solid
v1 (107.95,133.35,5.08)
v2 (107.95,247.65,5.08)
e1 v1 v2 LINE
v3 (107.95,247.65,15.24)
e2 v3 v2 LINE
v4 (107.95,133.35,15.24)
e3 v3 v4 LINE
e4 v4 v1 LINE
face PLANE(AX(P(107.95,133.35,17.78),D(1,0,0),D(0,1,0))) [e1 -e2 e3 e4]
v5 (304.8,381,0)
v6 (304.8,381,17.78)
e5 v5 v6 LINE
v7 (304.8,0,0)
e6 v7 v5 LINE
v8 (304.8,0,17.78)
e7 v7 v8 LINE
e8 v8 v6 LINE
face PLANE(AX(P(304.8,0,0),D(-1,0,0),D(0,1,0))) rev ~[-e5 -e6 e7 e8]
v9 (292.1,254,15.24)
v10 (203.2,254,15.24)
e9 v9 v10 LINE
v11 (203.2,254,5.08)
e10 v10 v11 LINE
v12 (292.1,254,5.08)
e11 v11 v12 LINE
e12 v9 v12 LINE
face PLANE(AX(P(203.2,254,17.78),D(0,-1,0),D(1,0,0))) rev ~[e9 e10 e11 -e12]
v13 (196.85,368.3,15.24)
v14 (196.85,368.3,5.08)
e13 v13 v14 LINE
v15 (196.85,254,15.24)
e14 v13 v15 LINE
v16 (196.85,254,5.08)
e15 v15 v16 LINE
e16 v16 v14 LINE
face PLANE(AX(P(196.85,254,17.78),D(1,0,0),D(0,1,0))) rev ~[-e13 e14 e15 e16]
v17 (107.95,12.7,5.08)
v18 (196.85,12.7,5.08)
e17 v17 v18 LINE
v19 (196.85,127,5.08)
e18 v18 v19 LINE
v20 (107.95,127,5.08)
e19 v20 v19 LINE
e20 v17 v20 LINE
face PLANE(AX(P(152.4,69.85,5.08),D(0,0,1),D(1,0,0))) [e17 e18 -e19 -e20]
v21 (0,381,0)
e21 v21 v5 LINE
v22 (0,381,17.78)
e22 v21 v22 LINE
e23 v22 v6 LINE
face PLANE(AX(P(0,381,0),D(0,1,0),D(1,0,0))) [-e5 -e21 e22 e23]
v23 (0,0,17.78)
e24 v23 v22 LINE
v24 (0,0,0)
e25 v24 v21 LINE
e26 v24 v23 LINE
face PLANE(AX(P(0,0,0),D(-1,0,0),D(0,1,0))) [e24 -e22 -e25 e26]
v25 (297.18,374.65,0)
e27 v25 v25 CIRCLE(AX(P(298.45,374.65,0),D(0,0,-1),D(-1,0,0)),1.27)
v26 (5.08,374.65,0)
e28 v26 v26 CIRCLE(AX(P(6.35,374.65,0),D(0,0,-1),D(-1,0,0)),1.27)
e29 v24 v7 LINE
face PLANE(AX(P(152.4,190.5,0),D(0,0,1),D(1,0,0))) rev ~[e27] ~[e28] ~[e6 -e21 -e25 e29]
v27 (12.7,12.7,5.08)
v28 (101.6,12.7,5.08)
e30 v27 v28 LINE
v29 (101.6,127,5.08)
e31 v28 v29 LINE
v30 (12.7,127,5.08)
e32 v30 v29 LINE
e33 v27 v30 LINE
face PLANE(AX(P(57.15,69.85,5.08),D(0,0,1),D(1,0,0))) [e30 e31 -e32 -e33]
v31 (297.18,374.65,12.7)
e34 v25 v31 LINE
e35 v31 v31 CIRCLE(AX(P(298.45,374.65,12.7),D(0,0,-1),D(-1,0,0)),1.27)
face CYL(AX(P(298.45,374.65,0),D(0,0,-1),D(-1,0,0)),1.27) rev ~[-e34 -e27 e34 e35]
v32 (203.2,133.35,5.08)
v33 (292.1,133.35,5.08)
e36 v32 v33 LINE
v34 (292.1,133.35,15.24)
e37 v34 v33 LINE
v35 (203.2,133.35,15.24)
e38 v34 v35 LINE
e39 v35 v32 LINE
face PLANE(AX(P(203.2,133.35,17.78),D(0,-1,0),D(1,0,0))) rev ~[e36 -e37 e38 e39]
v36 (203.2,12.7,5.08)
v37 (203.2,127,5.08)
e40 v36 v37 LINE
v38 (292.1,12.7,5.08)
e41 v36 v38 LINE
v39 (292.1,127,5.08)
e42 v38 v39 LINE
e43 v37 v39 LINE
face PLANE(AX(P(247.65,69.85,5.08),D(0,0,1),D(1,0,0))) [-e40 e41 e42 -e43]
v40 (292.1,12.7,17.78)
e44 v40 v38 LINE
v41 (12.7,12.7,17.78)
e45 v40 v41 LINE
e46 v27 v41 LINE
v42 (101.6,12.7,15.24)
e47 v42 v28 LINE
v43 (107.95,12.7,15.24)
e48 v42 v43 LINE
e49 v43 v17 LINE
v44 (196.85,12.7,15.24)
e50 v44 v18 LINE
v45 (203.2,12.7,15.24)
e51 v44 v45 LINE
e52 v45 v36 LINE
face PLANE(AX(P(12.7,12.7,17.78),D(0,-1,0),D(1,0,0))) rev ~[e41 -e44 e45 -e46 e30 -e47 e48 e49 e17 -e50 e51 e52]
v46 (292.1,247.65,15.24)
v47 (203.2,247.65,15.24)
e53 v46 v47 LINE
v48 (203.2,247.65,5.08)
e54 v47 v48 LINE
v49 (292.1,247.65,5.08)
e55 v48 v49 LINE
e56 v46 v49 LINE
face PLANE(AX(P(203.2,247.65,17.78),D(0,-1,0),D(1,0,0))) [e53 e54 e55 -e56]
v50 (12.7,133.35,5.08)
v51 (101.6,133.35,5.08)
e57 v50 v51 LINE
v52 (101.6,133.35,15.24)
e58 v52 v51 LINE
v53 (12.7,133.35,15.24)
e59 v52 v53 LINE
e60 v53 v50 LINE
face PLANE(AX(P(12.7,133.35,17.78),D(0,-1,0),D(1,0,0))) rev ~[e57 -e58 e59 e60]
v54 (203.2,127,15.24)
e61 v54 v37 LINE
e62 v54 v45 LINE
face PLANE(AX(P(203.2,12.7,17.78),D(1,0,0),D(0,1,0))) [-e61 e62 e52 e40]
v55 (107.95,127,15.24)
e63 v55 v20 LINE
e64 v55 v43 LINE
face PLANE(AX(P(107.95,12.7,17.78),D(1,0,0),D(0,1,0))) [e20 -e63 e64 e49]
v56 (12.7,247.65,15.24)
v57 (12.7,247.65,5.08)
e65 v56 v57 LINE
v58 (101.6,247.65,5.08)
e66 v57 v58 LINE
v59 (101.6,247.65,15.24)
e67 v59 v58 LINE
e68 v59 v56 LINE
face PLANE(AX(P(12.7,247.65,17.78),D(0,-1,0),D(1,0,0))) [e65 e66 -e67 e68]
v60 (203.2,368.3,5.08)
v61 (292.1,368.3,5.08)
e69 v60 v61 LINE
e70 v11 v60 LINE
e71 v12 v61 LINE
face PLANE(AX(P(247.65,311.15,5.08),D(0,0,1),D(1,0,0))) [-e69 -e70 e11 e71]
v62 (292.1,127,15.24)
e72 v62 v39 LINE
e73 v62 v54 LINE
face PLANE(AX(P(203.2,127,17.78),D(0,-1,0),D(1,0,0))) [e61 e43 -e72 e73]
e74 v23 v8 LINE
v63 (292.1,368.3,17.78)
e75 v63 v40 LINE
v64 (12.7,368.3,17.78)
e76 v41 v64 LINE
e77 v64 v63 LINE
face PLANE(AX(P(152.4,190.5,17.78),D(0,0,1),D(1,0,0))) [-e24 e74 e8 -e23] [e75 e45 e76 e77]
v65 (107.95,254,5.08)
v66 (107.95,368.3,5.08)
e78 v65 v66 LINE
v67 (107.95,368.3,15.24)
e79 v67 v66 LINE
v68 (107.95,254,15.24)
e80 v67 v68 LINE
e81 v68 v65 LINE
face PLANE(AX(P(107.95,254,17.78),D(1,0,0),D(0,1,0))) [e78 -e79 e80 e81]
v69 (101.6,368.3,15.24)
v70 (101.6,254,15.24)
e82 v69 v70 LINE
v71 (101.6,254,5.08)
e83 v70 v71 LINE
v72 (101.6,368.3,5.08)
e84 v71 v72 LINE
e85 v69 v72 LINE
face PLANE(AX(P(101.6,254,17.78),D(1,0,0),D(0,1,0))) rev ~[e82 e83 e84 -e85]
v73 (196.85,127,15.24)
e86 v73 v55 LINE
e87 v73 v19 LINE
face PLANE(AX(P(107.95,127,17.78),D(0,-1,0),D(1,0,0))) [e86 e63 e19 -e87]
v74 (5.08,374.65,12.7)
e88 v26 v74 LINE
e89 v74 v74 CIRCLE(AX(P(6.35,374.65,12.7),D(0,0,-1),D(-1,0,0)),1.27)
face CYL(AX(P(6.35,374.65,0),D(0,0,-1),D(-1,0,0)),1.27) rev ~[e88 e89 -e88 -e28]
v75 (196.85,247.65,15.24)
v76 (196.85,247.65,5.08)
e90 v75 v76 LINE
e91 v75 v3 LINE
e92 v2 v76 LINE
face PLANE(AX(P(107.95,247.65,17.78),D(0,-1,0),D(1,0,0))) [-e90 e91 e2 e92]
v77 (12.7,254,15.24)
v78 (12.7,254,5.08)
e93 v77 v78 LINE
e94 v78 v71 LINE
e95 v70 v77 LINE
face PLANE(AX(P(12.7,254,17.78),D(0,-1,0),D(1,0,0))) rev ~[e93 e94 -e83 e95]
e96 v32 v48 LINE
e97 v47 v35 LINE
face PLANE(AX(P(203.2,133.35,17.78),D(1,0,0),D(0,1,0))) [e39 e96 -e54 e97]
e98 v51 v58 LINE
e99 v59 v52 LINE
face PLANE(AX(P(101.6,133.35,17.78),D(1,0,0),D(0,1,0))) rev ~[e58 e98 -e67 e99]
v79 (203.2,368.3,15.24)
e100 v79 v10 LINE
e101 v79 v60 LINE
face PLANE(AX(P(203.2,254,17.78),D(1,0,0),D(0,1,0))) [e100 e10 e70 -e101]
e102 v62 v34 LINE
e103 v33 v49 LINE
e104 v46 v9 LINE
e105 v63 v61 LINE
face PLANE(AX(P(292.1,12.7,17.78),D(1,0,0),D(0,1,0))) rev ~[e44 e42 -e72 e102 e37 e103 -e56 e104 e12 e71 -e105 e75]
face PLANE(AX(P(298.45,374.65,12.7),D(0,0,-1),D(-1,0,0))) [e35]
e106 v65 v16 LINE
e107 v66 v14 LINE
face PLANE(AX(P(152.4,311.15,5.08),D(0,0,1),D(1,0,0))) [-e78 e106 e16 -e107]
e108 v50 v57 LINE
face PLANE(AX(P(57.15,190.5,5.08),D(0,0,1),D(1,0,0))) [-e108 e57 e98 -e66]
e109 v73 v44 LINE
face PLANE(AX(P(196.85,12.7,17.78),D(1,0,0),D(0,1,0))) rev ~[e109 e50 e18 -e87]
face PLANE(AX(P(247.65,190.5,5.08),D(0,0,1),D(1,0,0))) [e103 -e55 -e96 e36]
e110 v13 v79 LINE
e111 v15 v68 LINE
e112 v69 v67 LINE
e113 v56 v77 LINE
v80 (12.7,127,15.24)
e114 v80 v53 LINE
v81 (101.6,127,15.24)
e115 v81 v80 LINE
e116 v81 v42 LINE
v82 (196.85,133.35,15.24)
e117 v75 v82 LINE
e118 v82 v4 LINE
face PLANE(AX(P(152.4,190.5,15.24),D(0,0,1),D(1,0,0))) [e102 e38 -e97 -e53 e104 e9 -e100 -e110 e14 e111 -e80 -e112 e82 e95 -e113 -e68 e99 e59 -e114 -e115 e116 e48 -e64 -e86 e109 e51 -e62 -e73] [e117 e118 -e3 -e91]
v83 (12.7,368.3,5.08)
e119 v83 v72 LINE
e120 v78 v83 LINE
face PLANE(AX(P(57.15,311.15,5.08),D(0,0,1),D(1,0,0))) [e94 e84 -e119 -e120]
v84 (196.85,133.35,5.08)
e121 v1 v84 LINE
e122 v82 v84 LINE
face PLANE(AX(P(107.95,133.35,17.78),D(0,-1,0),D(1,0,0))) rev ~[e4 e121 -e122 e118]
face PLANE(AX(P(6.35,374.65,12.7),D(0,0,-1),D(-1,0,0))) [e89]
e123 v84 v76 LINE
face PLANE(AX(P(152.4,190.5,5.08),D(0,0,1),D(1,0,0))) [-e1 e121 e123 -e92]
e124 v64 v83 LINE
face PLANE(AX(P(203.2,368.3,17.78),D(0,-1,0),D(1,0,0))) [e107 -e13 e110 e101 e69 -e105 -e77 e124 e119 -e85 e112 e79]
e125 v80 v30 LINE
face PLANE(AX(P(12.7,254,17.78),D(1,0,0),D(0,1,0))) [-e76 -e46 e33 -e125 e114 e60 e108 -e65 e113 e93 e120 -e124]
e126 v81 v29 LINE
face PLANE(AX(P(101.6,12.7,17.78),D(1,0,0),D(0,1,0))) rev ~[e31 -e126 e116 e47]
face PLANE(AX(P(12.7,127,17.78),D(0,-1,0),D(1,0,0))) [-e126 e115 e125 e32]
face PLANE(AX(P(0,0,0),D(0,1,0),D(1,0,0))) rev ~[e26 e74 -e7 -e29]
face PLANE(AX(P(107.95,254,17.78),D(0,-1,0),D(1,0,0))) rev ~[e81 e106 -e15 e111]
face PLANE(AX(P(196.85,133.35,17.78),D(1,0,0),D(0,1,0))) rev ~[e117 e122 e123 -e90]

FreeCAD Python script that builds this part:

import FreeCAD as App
import Part
import Sketcher
from FreeCAD import Vector
Q = App.Units.Quantity


def add_polygon(sketch, points):
    """Adds a closed chain of lines whose ends are joined by coincident constraints."""
    first, n = sketch.GeometryCount, len(points)
    for a, b in zip(points, points[1:] + points[:1]):
        sketch.addGeometry(Part.LineSegment(App.Vector(*a, 0), App.Vector(*b, 0)), False)
    for i in range(n):
        sketch.addConstraint(Sketcher.Constraint("Coincident", first + i, 2, first + (i + 1) % n, 1))

doc = App.newDocument("Part")
body = doc.addObject("PartDesign::Body", "Body")

# Sketch on XY plane
sketch1 = body.newObject("Sketcher::SketchObject", "Sketch")
sketch1.AttachmentSupport = (doc.getObject("XY_Plane"), [""])
sketch1.MapMode = "FlatFace"
add_polygon(sketch1, [(0, 381), (0, 0), (305, 0), (305, 381)])  # lines 0-3
sketch1.addConstraint([
    Sketcher.Constraint("Vertical", 0),
    Sketcher.Constraint("Horizontal", 1),
    Sketcher.Constraint("Vertical", 2),
    Sketcher.Constraint("Horizontal", 3),
    Sketcher.Constraint("Coincident", 0, 2, -1, 1),
    Sketcher.Constraint("DistanceX", 1, 1, 1, 2, Q("12 in")),
    Sketcher.Constraint("DistanceY", 0, 2, 0, 1, Q("15 in")),
])
pad1 = body.newObject("PartDesign::Pad", "Pad")
pad1.Profile = sketch1
pad1.Length = Q("0.7 in")

# Sketch on XY plane
sketch2 = body.newObject("Sketcher::SketchObject", "Sketch001")
sketch2.AttachmentSupport = (doc.getObject("XY_Plane"), [""])
sketch2.MapMode = "FlatFace"
sketch2.AttachmentOffset = App.Placement(Vector(0, 0, 0.7 * 25.4), App.Rotation())
add_polygon(sketch2, [(13, 127), (13, 13), (102, 13), (102, 127)])  # lines 0-3
add_polygon(sketch2, [(108, 368), (108, 254), (197, 254), (197, 368)])  # lines 4-7
add_polygon(sketch2, [(13, 368), (13, 254), (102, 254), (102, 368)])  # lines 8-11
add_polygon(sketch2, [(203, 368), (203, 254), (292, 254), (292, 368)])  # lines 12-15
add_polygon(sketch2, [(13, 248), (13, 133), (102, 133), (102, 248)])  # lines 16-19
add_polygon(sketch2, [(108, 248), (108, 133), (197, 133), (197, 248)])  # lines 20-23
add_polygon(sketch2, [(203, 248), (203, 133), (292, 133), (292, 248)])  # lines 24-27
add_polygon(sketch2, [(108, 127), (108, 13), (197, 13), (197, 127)])  # lines 28-31
add_polygon(sketch2, [(203, 127), (203, 13), (292, 13), (292, 127)])  # lines 32-35
sketch2.addConstraint([
    Sketcher.Constraint("Vertical", 0),
    Sketcher.Constraint("Horizontal", 1),
    Sketcher.Constraint("Vertical", 2),
    Sketcher.Constraint("Horizontal", 3),
    Sketcher.Constraint("Vertical", 4),
    Sketcher.Constraint("Horizontal", 5),
    Sketcher.Constraint("Vertical", 6),
    Sketcher.Constraint("Horizontal", 7),
    Sketcher.Constraint("Vertical", 8),
    Sketcher.Constraint("Horizontal", 9),
    Sketcher.Constraint("Vertical", 10),
    Sketcher.Constraint("Horizontal", 11),
    Sketcher.Constraint("Vertical", 12),
    Sketcher.Constraint("Horizontal", 13),
    Sketcher.Constraint("Vertical", 14),
    Sketcher.Constraint("Horizontal", 15),
    Sketcher.Constraint("Vertical", 16),
    Sketcher.Constraint("Horizontal", 17),
    Sketcher.Constraint("Vertical", 18),
    Sketcher.Constraint("Horizontal", 19),
    Sketcher.Constraint("Vertical", 20),
    Sketcher.Constraint("Horizontal", 21),
    Sketcher.Constraint("Vertical", 22),
    Sketcher.Constraint("Horizontal", 23),
    Sketcher.Constraint("Vertical", 24),
    Sketcher.Constraint("Horizontal", 25),
    Sketcher.Constraint("Vertical", 26),
    Sketcher.Constraint("Horizontal", 27),
    Sketcher.Constraint("Vertical", 28),
    Sketcher.Constraint("Horizontal", 29),
    Sketcher.Constraint("Vertical", 30),
    Sketcher.Constraint("Horizontal", 31),
    Sketcher.Constraint("Vertical", 32),
    Sketcher.Constraint("Horizontal", 33),
    Sketcher.Constraint("Vertical", 34),
    Sketcher.Constraint("Horizontal", 35),
    Sketcher.Constraint("Horizontal", 5, 2, 8, 2),
    Sketcher.Constraint("Horizontal", 7, 2, 10, 2),
    Sketcher.Constraint("Horizontal", 9, 2, 12, 2),
    Sketcher.Constraint("Horizontal", 11, 2, 14, 2),
    Sketcher.Constraint("Horizontal", 17, 2, 20, 2),
    Sketcher.Constraint("Horizontal", 19, 2, 22, 2),
    Sketcher.Constraint("Horizontal", 21, 2, 24, 2),
    Sketcher.Constraint("Horizontal", 23, 2, 26, 2),
    Sketcher.Constraint("Horizontal", 1, 2, 28, 2),
    Sketcher.Constraint("Horizontal", 3, 2, 30, 2),
    Sketcher.Constraint("Horizontal", 29, 2, 32, 2),
    Sketcher.Constraint("Horizontal", 31, 2, 34, 2),
    Sketcher.Constraint("Vertical", 3, 2, 8, 2),
    Sketcher.Constraint("Vertical", 2, 2, 9, 2),
    Sketcher.Constraint("Vertical", 11, 2, 16, 2),
    Sketcher.Constraint("Vertical", 10, 2, 17, 2),
    Sketcher.Constraint("Vertical", 7, 2, 20, 2),
    Sketcher.Constraint("Vertical", 6, 2, 21, 2),
    Sketcher.Constraint("Vertical", 15, 2, 24, 2),
    Sketcher.Constraint("Vertical", 14, 2, 25, 2),
    Sketcher.Constraint("Vertical", 23, 2, 28, 2),
    Sketcher.Constraint("Vertical", 22, 2, 29, 2),
    Sketcher.Constraint("Vertical", 27, 2, 32, 2),
    Sketcher.Constraint("Vertical", 26, 2, 33, 2),
    Sketcher.Constraint("Equal", 3, 5),
    Sketcher.Constraint("Equal", 11, 13),
    Sketcher.Constraint("Equal", 2, 4),
    Sketcher.Constraint("Equal", 14, 16),
    Sketcher.Constraint("DistanceX", 1, 1, 1, 2, Q("3.5 in")),
    Sketcher.Constraint("DistanceY", 0, 2, 0, 1, Q("4.5 in")),
    Sketcher.Constraint("DistanceX", -1, 1, 1, 2, Q("4 in")),
    Sketcher.Constraint("DistanceY", -1, 1, 2, 2, Q("5 in")),
    Sketcher.Constraint("DistanceY", -1, 1, 4, 2, Q("10 in")),
    Sketcher.Constraint("DistanceX", -1, 1, 12, 2, Q("8 in")),
    Sketcher.Constraint("DistanceX", -1, 1, 4, 2, Q("4.25 in")),
    Sketcher.Constraint("DistanceY", -1, 1, 16, 2, Q("5.25 in")),
])
pocket1 = body.newObject("PartDesign::Pocket", "Pocket")
pocket1.Profile = sketch2
pocket1.Length = Q("0.5 in")

# Sketch on XY plane
sketch3 = body.newObject("Sketcher::SketchObject", "Sketch002")
sketch3.AttachmentSupport = (doc.getObject("XY_Plane"), [""])
sketch3.MapMode = "FlatFace"
sketch3.AttachmentOffset = App.Placement(Vector(0, 0, 0.7 * 25.4), App.Rotation())
add_polygon(sketch3, [(13, 368), (13, 13), (292, 13), (292, 368)])  # lines 0-3
sketch3.addConstraint([
    Sketcher.Constraint("Vertical", 0),
    Sketcher.Constraint("Horizontal", 1),
    Sketcher.Constraint("Vertical", 2),
    Sketcher.Constraint("Horizontal", 3),
    Sketcher.Constraint("DistanceX", 1, 1, 1, 2, Q("11 in")),
    Sketcher.Constraint("DistanceY", 0, 2, 0, 1, Q("14 in")),
    Sketcher.Constraint("DistanceX", -1, 1, 0, 2, Q("0.5 in")),
    Sketcher.Constraint("DistanceY", -1, 1, 0, 2, Q("0.5 in")),
])
pocket2 = body.newObject("PartDesign::Pocket", "Pocket001")
pocket2.Profile = sketch3
pocket2.Length = Q("0.1 in")

# Sketch on XY plane
sketch4 = body.newObject("Sketcher::SketchObject", "Sketch003")
sketch4.AttachmentSupport = (doc.getObject("XY_Plane"), [""])
sketch4.MapMode = "FlatFace"
sketch4.addGeometry([
    Part.Circle(Vector(6.3, 374.6, 0), Vector(0, 0, 1), 1.3),
    Part.Circle(Vector(298.4, 374.6, 0), Vector(0, 0, 1), 1.3),
], False)
sketch4.addConstraint([
    Sketcher.Constraint("Equal", 0, 1),
    Sketcher.Constraint("Horizontal", 0, 3, 1, 3),
    Sketcher.Constraint("Diameter", 0, Q("0.1 in")),
    Sketcher.Constraint("DistanceX", 0, 3, 1, 3, Q("11.5 in")),
    Sketcher.Constraint("DistanceX", -1, 1, 0, 3, Q("0.25 in")),
    Sketcher.Constraint("DistanceY", -1, 1, 0, 3, Q("14.75 in")),
])
pocket3 = body.newObject("PartDesign::Pocket", "Pocket002")
pocket3.Profile = sketch4
pocket3.Length = Q("0.5 in")
pocket3.Reversed = True

doc.recompute()
